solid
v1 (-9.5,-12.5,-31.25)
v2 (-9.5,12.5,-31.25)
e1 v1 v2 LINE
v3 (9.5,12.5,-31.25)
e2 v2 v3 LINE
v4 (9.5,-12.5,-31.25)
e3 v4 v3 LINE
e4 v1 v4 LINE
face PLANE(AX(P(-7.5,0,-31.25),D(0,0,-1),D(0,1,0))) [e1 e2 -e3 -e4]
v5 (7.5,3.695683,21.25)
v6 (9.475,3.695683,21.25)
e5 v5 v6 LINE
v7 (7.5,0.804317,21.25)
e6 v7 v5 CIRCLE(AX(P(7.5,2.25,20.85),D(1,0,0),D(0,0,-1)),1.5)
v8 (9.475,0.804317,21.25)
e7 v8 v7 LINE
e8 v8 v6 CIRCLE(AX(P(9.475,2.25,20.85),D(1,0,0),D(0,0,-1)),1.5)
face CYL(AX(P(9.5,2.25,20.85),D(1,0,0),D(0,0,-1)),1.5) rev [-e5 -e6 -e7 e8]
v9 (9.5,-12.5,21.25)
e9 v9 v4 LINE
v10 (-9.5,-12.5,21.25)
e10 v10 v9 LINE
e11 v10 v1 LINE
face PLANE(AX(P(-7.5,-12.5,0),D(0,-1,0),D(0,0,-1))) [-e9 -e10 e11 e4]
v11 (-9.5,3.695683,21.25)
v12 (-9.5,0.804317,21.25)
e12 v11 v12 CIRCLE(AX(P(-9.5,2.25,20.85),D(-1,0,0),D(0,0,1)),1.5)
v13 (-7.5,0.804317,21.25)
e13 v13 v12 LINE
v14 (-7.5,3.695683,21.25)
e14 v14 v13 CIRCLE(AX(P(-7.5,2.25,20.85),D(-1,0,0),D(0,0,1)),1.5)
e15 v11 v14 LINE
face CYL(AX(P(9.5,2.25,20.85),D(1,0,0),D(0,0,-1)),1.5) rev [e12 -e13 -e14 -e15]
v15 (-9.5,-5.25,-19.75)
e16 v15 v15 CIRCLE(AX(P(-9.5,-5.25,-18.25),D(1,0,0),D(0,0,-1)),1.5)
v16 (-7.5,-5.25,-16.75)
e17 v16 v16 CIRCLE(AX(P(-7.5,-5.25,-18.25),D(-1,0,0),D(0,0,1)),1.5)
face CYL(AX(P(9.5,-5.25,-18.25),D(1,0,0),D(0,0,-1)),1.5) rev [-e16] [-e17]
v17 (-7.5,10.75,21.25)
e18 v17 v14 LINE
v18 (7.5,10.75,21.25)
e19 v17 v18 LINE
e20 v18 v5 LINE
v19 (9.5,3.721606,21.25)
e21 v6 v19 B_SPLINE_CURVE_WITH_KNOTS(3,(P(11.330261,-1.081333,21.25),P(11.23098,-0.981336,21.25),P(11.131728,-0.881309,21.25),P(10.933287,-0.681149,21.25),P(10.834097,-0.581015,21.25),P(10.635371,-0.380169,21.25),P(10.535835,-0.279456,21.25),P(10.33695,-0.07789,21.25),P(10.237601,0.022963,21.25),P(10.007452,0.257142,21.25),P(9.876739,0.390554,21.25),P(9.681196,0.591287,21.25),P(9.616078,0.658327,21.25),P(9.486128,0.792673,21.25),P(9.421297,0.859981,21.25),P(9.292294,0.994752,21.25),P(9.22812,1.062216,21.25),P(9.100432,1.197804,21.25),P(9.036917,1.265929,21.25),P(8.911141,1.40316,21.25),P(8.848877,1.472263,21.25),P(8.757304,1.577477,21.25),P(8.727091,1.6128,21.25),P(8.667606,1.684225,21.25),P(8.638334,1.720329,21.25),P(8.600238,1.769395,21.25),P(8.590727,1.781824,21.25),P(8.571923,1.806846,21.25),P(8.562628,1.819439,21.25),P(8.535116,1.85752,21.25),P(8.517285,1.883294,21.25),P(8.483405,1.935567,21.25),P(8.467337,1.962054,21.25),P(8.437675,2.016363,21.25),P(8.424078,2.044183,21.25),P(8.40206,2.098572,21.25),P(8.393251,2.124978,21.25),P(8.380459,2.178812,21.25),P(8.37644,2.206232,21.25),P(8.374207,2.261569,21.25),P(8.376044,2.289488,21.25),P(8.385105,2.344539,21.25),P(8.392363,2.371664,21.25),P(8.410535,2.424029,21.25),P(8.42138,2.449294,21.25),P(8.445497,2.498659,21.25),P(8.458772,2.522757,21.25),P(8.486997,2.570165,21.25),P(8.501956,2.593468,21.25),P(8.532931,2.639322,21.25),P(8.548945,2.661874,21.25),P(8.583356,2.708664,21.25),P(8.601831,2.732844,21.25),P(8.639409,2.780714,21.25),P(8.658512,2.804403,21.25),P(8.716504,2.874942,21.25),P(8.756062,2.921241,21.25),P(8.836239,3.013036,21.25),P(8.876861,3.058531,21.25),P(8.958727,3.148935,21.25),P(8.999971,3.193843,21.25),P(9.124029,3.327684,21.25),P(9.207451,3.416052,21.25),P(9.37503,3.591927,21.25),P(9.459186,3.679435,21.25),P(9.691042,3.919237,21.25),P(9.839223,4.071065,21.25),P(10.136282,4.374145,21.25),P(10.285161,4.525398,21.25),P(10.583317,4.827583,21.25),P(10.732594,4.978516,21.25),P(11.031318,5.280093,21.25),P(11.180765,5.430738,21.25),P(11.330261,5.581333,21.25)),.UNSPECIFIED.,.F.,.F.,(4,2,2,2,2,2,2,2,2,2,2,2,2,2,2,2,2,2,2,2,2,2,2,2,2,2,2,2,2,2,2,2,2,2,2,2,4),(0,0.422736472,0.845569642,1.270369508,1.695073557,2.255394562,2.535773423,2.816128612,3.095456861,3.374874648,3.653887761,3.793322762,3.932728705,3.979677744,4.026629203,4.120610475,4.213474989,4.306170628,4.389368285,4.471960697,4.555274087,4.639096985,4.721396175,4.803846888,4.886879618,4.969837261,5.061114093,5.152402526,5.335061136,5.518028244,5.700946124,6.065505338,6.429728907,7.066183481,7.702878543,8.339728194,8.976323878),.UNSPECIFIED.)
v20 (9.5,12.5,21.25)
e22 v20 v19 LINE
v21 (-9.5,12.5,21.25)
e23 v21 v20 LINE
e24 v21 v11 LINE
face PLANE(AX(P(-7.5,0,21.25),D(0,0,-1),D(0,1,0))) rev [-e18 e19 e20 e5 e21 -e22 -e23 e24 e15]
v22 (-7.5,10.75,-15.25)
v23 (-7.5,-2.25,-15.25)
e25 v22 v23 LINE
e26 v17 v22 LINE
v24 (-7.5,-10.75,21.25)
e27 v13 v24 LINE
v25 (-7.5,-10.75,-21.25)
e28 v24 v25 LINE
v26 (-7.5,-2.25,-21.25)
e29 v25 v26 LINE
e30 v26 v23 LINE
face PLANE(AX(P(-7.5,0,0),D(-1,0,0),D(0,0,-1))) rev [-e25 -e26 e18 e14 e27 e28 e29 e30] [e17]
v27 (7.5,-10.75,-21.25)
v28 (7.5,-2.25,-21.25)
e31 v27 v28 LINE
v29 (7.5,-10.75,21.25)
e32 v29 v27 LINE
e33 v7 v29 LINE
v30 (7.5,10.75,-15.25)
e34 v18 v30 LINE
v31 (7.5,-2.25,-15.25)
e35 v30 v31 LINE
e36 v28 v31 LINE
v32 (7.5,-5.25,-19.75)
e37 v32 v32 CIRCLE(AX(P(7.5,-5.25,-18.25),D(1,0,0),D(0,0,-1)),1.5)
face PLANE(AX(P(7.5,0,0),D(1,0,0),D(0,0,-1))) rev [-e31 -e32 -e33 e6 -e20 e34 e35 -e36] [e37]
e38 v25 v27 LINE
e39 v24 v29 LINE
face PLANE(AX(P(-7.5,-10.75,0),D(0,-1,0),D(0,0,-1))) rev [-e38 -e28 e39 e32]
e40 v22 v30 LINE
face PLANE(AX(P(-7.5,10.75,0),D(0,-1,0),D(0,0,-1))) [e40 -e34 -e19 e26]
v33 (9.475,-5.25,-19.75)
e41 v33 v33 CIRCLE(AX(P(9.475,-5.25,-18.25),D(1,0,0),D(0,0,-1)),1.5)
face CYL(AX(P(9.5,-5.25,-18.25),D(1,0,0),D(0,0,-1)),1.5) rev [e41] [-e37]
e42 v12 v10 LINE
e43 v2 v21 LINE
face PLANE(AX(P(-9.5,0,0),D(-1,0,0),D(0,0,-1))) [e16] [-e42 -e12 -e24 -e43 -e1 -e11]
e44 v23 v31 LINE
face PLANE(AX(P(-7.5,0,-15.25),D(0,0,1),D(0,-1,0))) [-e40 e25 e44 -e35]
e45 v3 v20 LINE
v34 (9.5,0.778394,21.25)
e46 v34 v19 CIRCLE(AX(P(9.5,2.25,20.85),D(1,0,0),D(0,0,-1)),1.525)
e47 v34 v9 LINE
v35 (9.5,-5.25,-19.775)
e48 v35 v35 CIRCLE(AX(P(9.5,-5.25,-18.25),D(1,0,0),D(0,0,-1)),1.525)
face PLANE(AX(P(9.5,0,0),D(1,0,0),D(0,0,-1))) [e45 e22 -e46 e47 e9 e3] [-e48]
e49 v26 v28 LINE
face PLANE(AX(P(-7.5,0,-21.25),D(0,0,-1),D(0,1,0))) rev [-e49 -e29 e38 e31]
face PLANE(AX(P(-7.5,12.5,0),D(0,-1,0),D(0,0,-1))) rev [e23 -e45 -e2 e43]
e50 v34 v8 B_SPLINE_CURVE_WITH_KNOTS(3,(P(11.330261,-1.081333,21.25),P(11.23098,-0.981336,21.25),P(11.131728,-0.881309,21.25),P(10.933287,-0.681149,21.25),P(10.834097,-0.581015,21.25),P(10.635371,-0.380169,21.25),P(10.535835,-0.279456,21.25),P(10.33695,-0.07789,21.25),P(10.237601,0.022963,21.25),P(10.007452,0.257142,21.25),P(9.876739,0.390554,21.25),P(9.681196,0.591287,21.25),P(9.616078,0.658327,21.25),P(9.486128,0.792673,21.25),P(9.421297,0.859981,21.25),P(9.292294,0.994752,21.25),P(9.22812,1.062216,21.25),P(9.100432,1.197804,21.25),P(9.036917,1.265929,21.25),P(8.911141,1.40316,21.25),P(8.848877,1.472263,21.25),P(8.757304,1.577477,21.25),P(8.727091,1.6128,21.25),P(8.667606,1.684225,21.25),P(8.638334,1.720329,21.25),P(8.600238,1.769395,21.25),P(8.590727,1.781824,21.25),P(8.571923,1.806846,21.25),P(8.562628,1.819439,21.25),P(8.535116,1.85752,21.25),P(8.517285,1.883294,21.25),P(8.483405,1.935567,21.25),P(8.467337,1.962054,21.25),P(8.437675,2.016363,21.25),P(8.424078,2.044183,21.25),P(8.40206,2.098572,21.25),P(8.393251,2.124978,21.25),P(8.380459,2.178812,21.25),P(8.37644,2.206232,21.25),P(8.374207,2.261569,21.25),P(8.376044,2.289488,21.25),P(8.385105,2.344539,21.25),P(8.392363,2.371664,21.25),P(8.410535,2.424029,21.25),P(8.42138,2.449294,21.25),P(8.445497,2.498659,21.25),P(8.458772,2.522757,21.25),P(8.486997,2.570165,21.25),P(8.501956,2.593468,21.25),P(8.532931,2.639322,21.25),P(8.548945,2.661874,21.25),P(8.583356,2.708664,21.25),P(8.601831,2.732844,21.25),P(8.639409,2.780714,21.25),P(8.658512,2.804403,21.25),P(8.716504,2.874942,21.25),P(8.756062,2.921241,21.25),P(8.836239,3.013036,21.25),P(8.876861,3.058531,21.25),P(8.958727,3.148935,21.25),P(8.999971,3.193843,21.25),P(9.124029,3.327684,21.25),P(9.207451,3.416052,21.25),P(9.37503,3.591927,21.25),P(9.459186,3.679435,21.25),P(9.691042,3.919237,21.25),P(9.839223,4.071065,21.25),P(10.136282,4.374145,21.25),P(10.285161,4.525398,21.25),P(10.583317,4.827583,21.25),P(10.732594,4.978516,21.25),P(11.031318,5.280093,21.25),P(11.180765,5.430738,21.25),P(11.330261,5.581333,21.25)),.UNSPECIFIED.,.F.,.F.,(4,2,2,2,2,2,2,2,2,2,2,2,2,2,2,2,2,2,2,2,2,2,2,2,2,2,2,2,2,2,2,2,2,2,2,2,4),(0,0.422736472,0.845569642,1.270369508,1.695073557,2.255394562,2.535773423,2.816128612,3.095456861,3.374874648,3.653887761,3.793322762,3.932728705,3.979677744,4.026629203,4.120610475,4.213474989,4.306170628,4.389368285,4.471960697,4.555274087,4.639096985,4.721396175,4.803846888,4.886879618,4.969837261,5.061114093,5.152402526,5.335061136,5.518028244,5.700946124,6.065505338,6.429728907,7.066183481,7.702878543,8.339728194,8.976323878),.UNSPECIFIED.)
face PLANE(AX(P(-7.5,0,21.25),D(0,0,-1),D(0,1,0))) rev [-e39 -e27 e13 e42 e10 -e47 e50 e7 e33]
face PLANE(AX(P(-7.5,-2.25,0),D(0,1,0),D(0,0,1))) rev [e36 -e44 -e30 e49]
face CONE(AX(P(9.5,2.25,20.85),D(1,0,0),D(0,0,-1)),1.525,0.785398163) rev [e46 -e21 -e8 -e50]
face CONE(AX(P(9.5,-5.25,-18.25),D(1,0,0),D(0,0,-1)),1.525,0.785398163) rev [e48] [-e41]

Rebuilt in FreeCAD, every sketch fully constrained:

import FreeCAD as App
import Part
import Sketcher
Q = App.Units.Quantity


def add_polygon(sketch, points):
    """Adds a closed chain of lines whose ends are joined by coincident constraints."""
    first, n = sketch.GeometryCount, len(points)
    for a, b in zip(points, points[1:] + points[:1]):
        sketch.addGeometry(Part.LineSegment(App.Vector(*a, 0), App.Vector(*b, 0)), False)
    for i in range(n):
        sketch.addConstraint(Sketcher.Constraint("Coincident", first + i, 2, first + (i + 1) % n, 1))

doc = App.newDocument("Part")
body = doc.addObject("PartDesign::Body", "Body")

# Sketch on YZ plane
sketch1 = body.newObject("Sketcher::SketchObject", "Sketch")
sketch1.AttachmentSupport = (doc.getObject("YZ_Plane"), [""])
sketch1.MapMode = "FlatFace"
add_polygon(sketch1, [(-10.75, -21.25), (-10.75, 21.25), (-12.5, 21.25), (-12.5, -31.25), (12.5, -31.25), (12.5, 21.25), (10.75, 21.25), (10.75, -15.25), (-2.25, -15.25), (-2.25, -21.25)])  # lines 0-9
sketch1.addConstraint(Sketcher.Constraint("Vertical", 0))
sketch1.addConstraint(Sketcher.Constraint("Horizontal", 1))
sketch1.addConstraint(Sketcher.Constraint("Vertical", 2))
sketch1.addConstraint(Sketcher.Constraint("Horizontal", 3))
sketch1.addConstraint(Sketcher.Constraint("Vertical", 4))
sketch1.addConstraint(Sketcher.Constraint("Horizontal", 5))
sketch1.addConstraint(Sketcher.Constraint("Vertical", 6))
sketch1.addConstraint(Sketcher.Constraint("Horizontal", 7))
sketch1.addConstraint(Sketcher.Constraint("Vertical", 8))
sketch1.addConstraint(Sketcher.Constraint("Horizontal", 9))
sketch1.addConstraint(Sketcher.Constraint("Symmetric", 5, 2, 9, 2, -1, 1))
sketch1.addConstraint(Sketcher.Constraint("Symmetric", 1, 2, 4, 2, -2))
sketch1.addConstraint(Sketcher.Constraint("DistanceX", 3, 1, 3, 2, Q("25 mm")))
sketch1.addConstraint(Sketcher.Constraint("DistanceX", 7, 2, 7, 1, Q("13 mm")))
sketch1.addConstraint(Sketcher.Constraint("DistanceY", 8, 2, 8, 1, Q("6 mm")))
sketch1.addConstraint(Sketcher.Constraint("DistanceX", 9, 2, 9, 1, Q("8.5 mm")))
sketch1.addConstraint(Sketcher.Constraint("DistanceY", 0, 1, 0, 2, Q("42.5 mm")))
sketch1.addConstraint(Sketcher.Constraint("DistanceY", 2, 2, 2, 1, Q("52.5 mm")))
pad1 = body.newObject("PartDesign::Pad", "Pad")
pad1.Profile = sketch1
pad1.Type = "TwoLengths"
pad1.Length = 7.5
pad1.Length2 = 7.5

# Sketch on YZ plane
sketch2 = body.newObject("Sketcher::SketchObject", "Sketch001")
sketch2.AttachmentSupport = (doc.getObject("YZ_Plane"), [""])
sketch2.MapMode = "FlatFace"
sketch2.AttachmentOffset = App.Placement(App.Vector(0, 0, 7.5), App.Rotation())
add_polygon(sketch2, [(-12.5, 21.25), (-12.5, -31.25), (12.5, -31.25), (12.5, 21.25)])  # lines 0-3
sketch2.addConstraint(Sketcher.Constraint("Vertical", 0))
sketch2.addConstraint(Sketcher.Constraint("Horizontal", 1))
sketch2.addConstraint(Sketcher.Constraint("Vertical", 2))
sketch2.addConstraint(Sketcher.Constraint("Horizontal", 3))
sketch2.addConstraint(Sketcher.Constraint("DistanceX", 1, 1, 1, 2, Q("25 mm")))
sketch2.addConstraint(Sketcher.Constraint("DistanceY", 0, 2, 0, 1, Q("52.5 mm")))
sketch2.addConstraint(Sketcher.Constraint("DistanceX", 0, 2, -1, 1, Q("12.5 mm")))
sketch2.addConstraint(Sketcher.Constraint("DistanceY", 0, 2, -1, 1, Q("31.25 mm")))
pad2 = body.newObject("PartDesign::Pad", "Pad001")
pad2.Profile = sketch2
pad2.Length = 2
doc.recompute()

mirrored = body.newObject("PartDesign::Mirrored", "Mirrored")
mirrored.Originals = [pad2]
mirrored.MirrorPlane = (doc.getObject("YZ_Plane"), [""])
body.Tip = mirrored

# Sketch on YZ plane
sketch3 = body.newObject("Sketcher::SketchObject", "Sketch002")
sketch3.AttachmentSupport = (doc.getObject("YZ_Plane"), [""])
sketch3.MapMode = "FlatFace"
sketch3.AttachmentOffset = App.Placement(App.Vector(0, 0, 9.5), App.Rotation())
sketch3.addGeometry(Part.Circle(App.Vector(2.25, 20.85, 0), App.Vector(0, 0, 1), 1.5), False)
sketch3.addGeometry(Part.Circle(App.Vector(-5.25, -18.25, 0), App.Vector(0, 0, 1), 1.5), False)
sketch3.addConstraint(Sketcher.Constraint("Equal", 0, 1))
sketch3.addConstraint(Sketcher.Constraint("Diameter", 0, Q("3 mm")))
sketch3.addConstraint(Sketcher.Constraint("DistanceX", 1, 3, 0, 3, Q("7.5 mm")))
sketch3.addConstraint(Sketcher.Constraint("DistanceY", 1, 3, 0, 3, Q("39.1 mm")))
sketch3.addConstraint(Sketcher.Constraint("DistanceX", -1, 1, 0, 3, Q("2.25 mm")))
sketch3.addConstraint(Sketcher.Constraint("DistanceY", -1, 1, 0, 3, Q("20.85 mm")))
doc.recompute()
hole = body.newObject("PartDesign::Hole", "Hole")
hole.Profile = sketch3
hole.ThreadType = "None"
hole.Diameter = 3
hole.DepthType = "ThroughAll"
hole.HoleCutType = "Countersink"
hole.HoleCutDiameter = 3.05
hole.HoleCutCountersinkAngle = 90

doc.recompute()
